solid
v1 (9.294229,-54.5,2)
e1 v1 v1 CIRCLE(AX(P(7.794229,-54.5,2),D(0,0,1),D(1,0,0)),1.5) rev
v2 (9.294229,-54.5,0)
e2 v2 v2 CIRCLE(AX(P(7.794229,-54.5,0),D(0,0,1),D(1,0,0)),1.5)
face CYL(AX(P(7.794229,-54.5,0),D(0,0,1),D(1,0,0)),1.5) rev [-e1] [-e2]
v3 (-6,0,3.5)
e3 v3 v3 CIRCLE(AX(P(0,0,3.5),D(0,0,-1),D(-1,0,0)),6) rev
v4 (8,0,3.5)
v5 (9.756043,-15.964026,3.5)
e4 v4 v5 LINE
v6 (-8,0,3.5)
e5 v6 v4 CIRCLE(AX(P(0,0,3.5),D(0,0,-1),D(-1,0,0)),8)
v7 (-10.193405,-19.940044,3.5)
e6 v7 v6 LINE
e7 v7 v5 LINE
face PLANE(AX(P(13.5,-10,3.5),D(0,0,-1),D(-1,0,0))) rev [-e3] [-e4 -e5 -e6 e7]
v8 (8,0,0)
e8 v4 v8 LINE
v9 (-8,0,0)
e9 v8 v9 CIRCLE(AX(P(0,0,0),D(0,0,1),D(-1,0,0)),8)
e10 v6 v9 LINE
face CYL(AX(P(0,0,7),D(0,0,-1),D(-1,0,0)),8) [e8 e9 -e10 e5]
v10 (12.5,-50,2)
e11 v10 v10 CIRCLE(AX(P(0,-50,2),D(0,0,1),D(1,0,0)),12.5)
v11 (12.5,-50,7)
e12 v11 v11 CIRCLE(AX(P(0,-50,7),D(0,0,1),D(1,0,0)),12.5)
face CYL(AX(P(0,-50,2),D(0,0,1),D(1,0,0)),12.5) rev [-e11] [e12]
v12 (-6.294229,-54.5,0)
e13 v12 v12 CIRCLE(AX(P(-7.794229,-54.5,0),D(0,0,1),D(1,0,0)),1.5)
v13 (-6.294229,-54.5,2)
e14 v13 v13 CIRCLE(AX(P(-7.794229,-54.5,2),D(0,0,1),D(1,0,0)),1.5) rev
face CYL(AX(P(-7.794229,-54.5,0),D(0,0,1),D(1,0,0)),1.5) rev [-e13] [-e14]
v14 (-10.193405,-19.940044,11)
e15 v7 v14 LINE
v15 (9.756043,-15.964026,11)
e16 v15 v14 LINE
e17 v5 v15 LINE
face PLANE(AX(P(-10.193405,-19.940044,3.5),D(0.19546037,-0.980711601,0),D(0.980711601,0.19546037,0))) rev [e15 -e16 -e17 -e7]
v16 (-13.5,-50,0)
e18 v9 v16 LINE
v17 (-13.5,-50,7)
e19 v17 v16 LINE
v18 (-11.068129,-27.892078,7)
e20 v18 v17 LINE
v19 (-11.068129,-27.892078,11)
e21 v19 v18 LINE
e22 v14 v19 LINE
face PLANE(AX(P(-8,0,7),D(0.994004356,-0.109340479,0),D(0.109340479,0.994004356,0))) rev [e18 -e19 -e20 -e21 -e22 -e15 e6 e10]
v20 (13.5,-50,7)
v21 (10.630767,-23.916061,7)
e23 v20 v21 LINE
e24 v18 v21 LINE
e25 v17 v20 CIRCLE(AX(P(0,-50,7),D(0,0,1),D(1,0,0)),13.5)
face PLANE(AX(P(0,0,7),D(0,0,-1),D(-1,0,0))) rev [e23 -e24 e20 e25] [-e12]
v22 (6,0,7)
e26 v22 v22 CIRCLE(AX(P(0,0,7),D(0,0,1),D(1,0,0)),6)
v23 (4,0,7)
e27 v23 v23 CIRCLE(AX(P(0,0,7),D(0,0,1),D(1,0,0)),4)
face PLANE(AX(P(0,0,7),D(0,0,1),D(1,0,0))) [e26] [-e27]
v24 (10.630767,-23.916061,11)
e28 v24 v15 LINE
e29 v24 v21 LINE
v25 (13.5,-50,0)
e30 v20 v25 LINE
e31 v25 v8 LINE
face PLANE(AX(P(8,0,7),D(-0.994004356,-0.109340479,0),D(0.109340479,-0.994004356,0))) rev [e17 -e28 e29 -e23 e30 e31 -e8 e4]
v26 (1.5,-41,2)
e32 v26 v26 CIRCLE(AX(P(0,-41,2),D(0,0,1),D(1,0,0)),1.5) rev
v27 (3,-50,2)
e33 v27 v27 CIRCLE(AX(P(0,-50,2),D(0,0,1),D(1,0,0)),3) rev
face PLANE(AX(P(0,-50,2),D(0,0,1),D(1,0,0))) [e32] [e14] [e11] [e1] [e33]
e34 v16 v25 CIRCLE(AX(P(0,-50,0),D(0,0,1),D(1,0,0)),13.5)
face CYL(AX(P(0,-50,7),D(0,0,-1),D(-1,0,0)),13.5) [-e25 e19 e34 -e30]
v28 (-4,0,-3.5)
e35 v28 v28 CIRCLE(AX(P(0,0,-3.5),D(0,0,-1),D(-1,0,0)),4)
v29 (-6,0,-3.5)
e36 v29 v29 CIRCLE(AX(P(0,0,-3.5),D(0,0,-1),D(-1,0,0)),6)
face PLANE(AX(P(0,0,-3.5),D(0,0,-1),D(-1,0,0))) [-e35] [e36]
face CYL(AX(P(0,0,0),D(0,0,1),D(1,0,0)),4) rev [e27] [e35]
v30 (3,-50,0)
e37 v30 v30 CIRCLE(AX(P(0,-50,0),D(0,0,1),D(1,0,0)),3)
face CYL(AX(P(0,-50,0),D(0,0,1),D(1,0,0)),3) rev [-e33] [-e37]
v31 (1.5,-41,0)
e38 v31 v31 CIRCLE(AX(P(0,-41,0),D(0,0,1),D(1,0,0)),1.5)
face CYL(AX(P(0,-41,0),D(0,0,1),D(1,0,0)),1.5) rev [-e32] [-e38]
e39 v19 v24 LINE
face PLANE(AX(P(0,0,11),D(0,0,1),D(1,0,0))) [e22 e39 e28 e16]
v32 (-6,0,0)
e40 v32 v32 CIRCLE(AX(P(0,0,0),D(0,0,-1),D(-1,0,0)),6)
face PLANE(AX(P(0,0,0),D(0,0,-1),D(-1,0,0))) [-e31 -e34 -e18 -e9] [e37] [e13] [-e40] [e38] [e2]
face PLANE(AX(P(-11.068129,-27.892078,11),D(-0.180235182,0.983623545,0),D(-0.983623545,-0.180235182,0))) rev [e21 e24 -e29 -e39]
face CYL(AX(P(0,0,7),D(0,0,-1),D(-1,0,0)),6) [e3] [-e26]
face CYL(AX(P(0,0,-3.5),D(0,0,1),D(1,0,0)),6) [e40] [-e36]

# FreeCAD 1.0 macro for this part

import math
import FreeCAD as App
import Part
import Sketcher

V = App.Vector
Q = App.Units.Quantity

doc = App.newDocument("Part")
body = doc.addObject("PartDesign::Body", "Body")

# Sketch on XY plane
sketch1 = body.newObject("Sketcher::SketchObject", "Sketch")
sketch1.AttachmentSupport = (doc.getObject("XY_Plane"), [""])
sketch1.MapMode = "FlatFace"
sketch1.addGeometry([
    Part.LineSegment(V(13.5, -50, 0), V(8, 0, 0)),
    Part.ArcOfCircle(Part.Circle(V(0, 0, 0), V(0, 0, 1), 8), math.radians(0), math.radians(180)),
    Part.LineSegment(V(-8, 0, 0), V(-13.5, -50, 0)),
    Part.ArcOfCircle(Part.Circle(V(0, -50, 0), V(0, 0, 1), 13.5), math.radians(180), math.radians(360)),
], False)
sketch1.addConstraint([
    Sketcher.Constraint("Coincident", 0, 2, 1, 1),
    Sketcher.Constraint("Coincident", 1, 2, 2, 1),
    Sketcher.Constraint("Coincident", 2, 2, 3, 1),
    Sketcher.Constraint("Coincident", 3, 2, 0, 1),
    Sketcher.Constraint("Coincident", 1, 3, -1, 1),
    Sketcher.Constraint("Symmetric", 2, 2, 3, 2, -2),
    Sketcher.Constraint("PointOnObject", 0, 2, -1),
    Sketcher.Constraint("PointOnObject", 1, 2, -1),
    Sketcher.Constraint("Horizontal", 3, 3, 2, 2),
    Sketcher.Constraint("Radius", 1, Q("8 mm")),
    Sketcher.Constraint("Radius", 3, Q("13.5 mm")),
    Sketcher.Constraint("DistanceY", 3, 3, -1, 1, Q("50 mm")),
])
pad1 = body.newObject("PartDesign::Pad", "Pad")
pad1.Profile = sketch1
pad1.Length = 7

# Sketch on XY plane
sketch2 = body.newObject("Sketcher::SketchObject", "Sketch001")
sketch2.AttachmentSupport = (doc.getObject("XY_Plane"), [""])
sketch2.MapMode = "FlatFace"
sketch2.AttachmentOffset = App.Placement(V(0, 0, 7), App.Rotation())
sketch2.addGeometry(Part.Circle(V(0, -50, 0), V(0, 0, 1), 3), False)
sketch2.addConstraint([
    Sketcher.Constraint("PointOnObject", 0, 3, -2),
    Sketcher.Constraint("Diameter", 0, Q("6 mm")),
    Sketcher.Constraint("DistanceY", 0, 3, -1, 1, Q("50 mm")),
])
pocket1 = body.newObject("PartDesign::Pocket", "Pocket")
pocket1.Profile = sketch2
pocket1.Length = 7

# Sketch on XY plane
sketch3 = body.newObject("Sketcher::SketchObject", "Sketch002")
sketch3.AttachmentSupport = (doc.getObject("XY_Plane"), [""])
sketch3.MapMode = "FlatFace"
sketch3.AttachmentOffset = App.Placement(V(0, 0, 7), App.Rotation())
sketch3.addGeometry([
    Part.Circle(V(0, -41, 0), V(0, 0, 1), 1.5),
    Part.Circle(V(-7.794229, -54.5, 0), V(0, 0, 1), 1.5),
    Part.Circle(V(7.794229, -54.5, 0), V(0, 0, 1), 1.5),
], False)
sketch3.addConstraint([
    Sketcher.Constraint("Equal", 0, 1),
    Sketcher.Constraint("Equal", 1, 2),
    Sketcher.Constraint("Symmetric", 1, 3, 2, 3, -2),
    Sketcher.Constraint("PointOnObject", 0, 3, -2),
    Sketcher.Constraint("Diameter", 0, Q("3 mm")),
    Sketcher.Constraint("DistanceY", 0, 3, -1, 1, Q("41 mm")),
    Sketcher.Constraint("DistanceY", 1, 3, -1, 1, Q("54.5 mm")),
    Sketcher.Constraint("DistanceX", 1, 3, -1, 1, Q("7.794229 mm")),
])
pocket2 = body.newObject("PartDesign::Pocket", "Pocket001")
pocket2.Profile = sketch3
pocket2.Length = 7

# Sketch on XY plane
sketch4 = body.newObject("Sketcher::SketchObject", "Sketch003")
sketch4.AttachmentSupport = (doc.getObject("XY_Plane"), [""])
sketch4.MapMode = "FlatFace"
sketch4.AttachmentOffset = App.Placement(V(0, 0, 7), App.Rotation())
sketch4.addGeometry(Part.Circle(V(0, -50, 0), V(0, 0, 1), 12.5), False)
sketch4.addConstraint([
    Sketcher.Constraint("PointOnObject", 0, 3, -2),
    Sketcher.Constraint("Diameter", 0, Q("25 mm")),
    Sketcher.Constraint("DistanceY", 0, 3, -1, 1, Q("50 mm")),
])
pocket3 = body.newObject("PartDesign::Pocket", "Pocket002")
pocket3.Profile = sketch4
pocket3.Length = 5

# Sketch on XZ plane
sketch5 = body.newObject("Sketcher::SketchObject", "Sketch004")
sketch5.AttachmentSupport = (doc.getObject("XZ_Plane"), [""])
sketch5.MapMode = "FlatFace"
sketch5.AttachmentOffset = App.Placement(V(0, 0, -10), App.Rotation())
sketch5.addGeometry([
    Part.LineSegment(V(-13.5, 3.5, 0), V(-13.5, 7, 0)),
    Part.LineSegment(V(-13.5, 7, 0), V(13.5, 7, 0)),
    Part.LineSegment(V(13.5, 7, 0), V(13.5, 3.5, 0)),
    Part.LineSegment(V(13.5, 3.5, 0), V(-13.5, 3.5, 0)),
], False)
sketch5.addConstraint([
    Sketcher.Constraint("Coincident", 0, 2, 1, 1),
    Sketcher.Constraint("Coincident", 1, 2, 2, 1),
    Sketcher.Constraint("Coincident", 2, 2, 3, 1),
    Sketcher.Constraint("Coincident", 3, 2, 0, 1),
    Sketcher.Constraint("Vertical", 0),
    Sketcher.Constraint("Horizontal", 1),
    Sketcher.Constraint("Vertical", 2),
    Sketcher.Constraint("Horizontal", 3),
    Sketcher.Constraint("DistanceX", 1, 1, 1, 2, Q("27 mm")),
    Sketcher.Constraint("DistanceY", 0, 1, 0, 2, Q("3.5 mm")),
    Sketcher.Constraint("DistanceY", -1, 1, 0, 2, Q("7 mm")),
    Sketcher.Constraint("DistanceX", 0, 2, -1, 1, Q("13.5 mm")),
])
pocket4 = body.newObject("PartDesign::Pocket", "Pocket003")
pocket4.Profile = sketch5
pocket4.Length = 20
pocket4.Reversed = True

# Sketch on XY plane
sketch6 = body.newObject("Sketcher::SketchObject", "Sketch005")
sketch6.AttachmentSupport = (doc.getObject("XY_Plane"), [""])
sketch6.MapMode = "FlatFace"
sketch6.AttachmentOffset = App.Placement(V(0, 0, 3.5), App.Rotation())
sketch6.addGeometry(Part.Circle(V(0, 0, 0), V(0, 0, 1), 6), False)
sketch6.addConstraint([
    Sketcher.Constraint("Coincident", 0, 3, -1, 1),
    Sketcher.Constraint("Diameter", 0, Q("12 mm")),
])
pad2 = body.newObject("PartDesign::Pad", "Pad001")
pad2.Profile = sketch6
pad2.Length = 3.5

# Sketch on XY plane
sketch7 = body.newObject("Sketcher::SketchObject", "Sketch006")
sketch7.AttachmentSupport = (doc.getObject("XY_Plane"), [""])
sketch7.MapMode = "FlatFace"
sketch7.AttachmentOffset = App.Placement(V(0, 0, 7), App.Rotation())
sketch7.addGeometry(Part.Circle(V(0, 0, 0), V(0, 0, 1), 4), False)
sketch7.addConstraint([
    Sketcher.Constraint("Coincident", 0, 3, -1, 1),
    Sketcher.Constraint("Diameter", 0, Q("8 mm")),
])
pocket5 = body.newObject("PartDesign::Pocket", "Pocket004")
pocket5.Profile = sketch7
pocket5.Type = "ThroughAll"

# Sketch on XY plane
sketch8 = body.newObject("Sketcher::SketchObject", "Sketch007")
sketch8.AttachmentSupport = (doc.getObject("XY_Plane"), [""])
sketch8.MapMode = "FlatFace"
sketch8.AttachmentOffset = App.Placement(V(0, 0, 7), App.Rotation())
sketch8.addGeometry([
    Part.LineSegment(V(-9.1, -10, 0), V(-10.193405, -19.940044, 0)),
    Part.LineSegment(V(-10.193405, -19.940044, 0), V(9.756043, -15.964026, 0)),
    Part.LineSegment(V(9.756043, -15.964026, 0), V(9.1, -10, 0)),
    Part.LineSegment(V(9.1, -10, 0), V(-9.1, -10, 0)),
], False)
sketch8.addConstraint([
    Sketcher.Constraint("Coincident", 0, 2, 1, 1),
    Sketcher.Constraint("Coincident", 1, 2, 2, 1),
    Sketcher.Constraint("Coincident", 2, 2, 3, 1),
    Sketcher.Constraint("Coincident", 3, 2, 0, 1),
    Sketcher.Constraint("Horizontal", 3),
    Sketcher.Constraint("Distance", 0, Q("10 mm")),
    Sketcher.Constraint("Distance", 2, Q("6 mm")),
    Sketcher.Constraint("DistanceX", 3, 2, 3, 1, Q("18.2 mm")),
    Sketcher.Constraint("DistanceY", 2, 2, -1, 1, Q("10 mm")),
    Sketcher.Constraint("DistanceX", -1, 1, 2, 2, Q("9.1 mm")),
    Sketcher.Constraint("Distance", 1, Q("20.341809 mm")),
    Sketcher.Constraint("DistanceX", 0, 2, -1, 1, Q("10.193405 mm")),
])
pocket6 = body.newObject("PartDesign::Pocket", "Pocket005")
pocket6.Profile = sketch8
pocket6.Length = 3.5

# Sketch on XY plane
sketch9 = body.newObject("Sketcher::SketchObject", "Sketch008")
sketch9.AttachmentSupport = (doc.getObject("XY_Plane"), [""])
sketch9.MapMode = "FlatFace"
sketch9.AttachmentOffset = App.Placement(V(0, 0, 7), App.Rotation())
sketch9.addGeometry([
    Part.LineSegment(V(9.756043, -15.964026, 0), V(-10.193405, -19.940044, 0)),
    Part.LineSegment(V(-10.193405, -19.940044, 0), V(-11.068129, -27.892078, 0)),
    Part.LineSegment(V(-11.068129, -27.892078, 0), V(10.630767, -23.916061, 0)),
    Part.LineSegment(V(10.630767, -23.916061, 0), V(9.756043, -15.964026, 0)),
], False)
sketch9.addConstraint([
    Sketcher.Constraint("Coincident", 0, 2, 1, 1),
    Sketcher.Constraint("Coincident", 1, 2, 2, 1),
    Sketcher.Constraint("Coincident", 2, 2, 3, 1),
    Sketcher.Constraint("Coincident", 3, 2, 0, 1),
    Sketcher.Constraint("Equal", 1, 3),
    Sketcher.Constraint("Distance", 1, Q("8 mm")),
    Sketcher.Constraint("Distance", 0, Q("20.341809 mm")),
    Sketcher.Constraint("DistanceX", 1, 2, -1, 1, Q("11.068129 mm")),
    Sketcher.Constraint("DistanceY", 1, 2, -1, 1, Q("27.892078 mm")),
    Sketcher.Constraint("DistanceY", 2, 2, -1, 1, Q("23.916061 mm")),
    Sketcher.Constraint("DistanceX", 0, 2, 2, 2, Q("20.824171 mm")),
    Sketcher.Constraint("DistanceX", 1, 2, 3, 2, Q("20.824171 mm")),
])
pad3 = body.newObject("PartDesign::Pad", "Pad002")
pad3.Profile = sketch9
pad3.Length = 4

# Sketch on XY plane
sketch10 = body.newObject("Sketcher::SketchObject", "Sketch009")
sketch10.AttachmentSupport = (doc.getObject("XY_Plane"), [""])
sketch10.MapMode = "FlatFace"
sketch10.addGeometry([
    Part.Circle(V(0, 0, 0), V(0, 0, 1), 6),
    Part.Circle(V(0, 0, 0), V(0, 0, 1), 4),
], False)
sketch10.addConstraint([
    Sketcher.Constraint("Coincident", 0, 3, -1, 1),
    Sketcher.Constraint("Coincident", 1, 3, -1, 1),
    Sketcher.Constraint("Diameter", 0, Q("12 mm")),
    Sketcher.Constraint("Diameter", 1, Q("8 mm")),
])
pad4 = body.newObject("PartDesign::Pad", "Pad003")
pad4.Profile = sketch10
pad4.Length = 3.5
pad4.Reversed = True

doc.recompute()
